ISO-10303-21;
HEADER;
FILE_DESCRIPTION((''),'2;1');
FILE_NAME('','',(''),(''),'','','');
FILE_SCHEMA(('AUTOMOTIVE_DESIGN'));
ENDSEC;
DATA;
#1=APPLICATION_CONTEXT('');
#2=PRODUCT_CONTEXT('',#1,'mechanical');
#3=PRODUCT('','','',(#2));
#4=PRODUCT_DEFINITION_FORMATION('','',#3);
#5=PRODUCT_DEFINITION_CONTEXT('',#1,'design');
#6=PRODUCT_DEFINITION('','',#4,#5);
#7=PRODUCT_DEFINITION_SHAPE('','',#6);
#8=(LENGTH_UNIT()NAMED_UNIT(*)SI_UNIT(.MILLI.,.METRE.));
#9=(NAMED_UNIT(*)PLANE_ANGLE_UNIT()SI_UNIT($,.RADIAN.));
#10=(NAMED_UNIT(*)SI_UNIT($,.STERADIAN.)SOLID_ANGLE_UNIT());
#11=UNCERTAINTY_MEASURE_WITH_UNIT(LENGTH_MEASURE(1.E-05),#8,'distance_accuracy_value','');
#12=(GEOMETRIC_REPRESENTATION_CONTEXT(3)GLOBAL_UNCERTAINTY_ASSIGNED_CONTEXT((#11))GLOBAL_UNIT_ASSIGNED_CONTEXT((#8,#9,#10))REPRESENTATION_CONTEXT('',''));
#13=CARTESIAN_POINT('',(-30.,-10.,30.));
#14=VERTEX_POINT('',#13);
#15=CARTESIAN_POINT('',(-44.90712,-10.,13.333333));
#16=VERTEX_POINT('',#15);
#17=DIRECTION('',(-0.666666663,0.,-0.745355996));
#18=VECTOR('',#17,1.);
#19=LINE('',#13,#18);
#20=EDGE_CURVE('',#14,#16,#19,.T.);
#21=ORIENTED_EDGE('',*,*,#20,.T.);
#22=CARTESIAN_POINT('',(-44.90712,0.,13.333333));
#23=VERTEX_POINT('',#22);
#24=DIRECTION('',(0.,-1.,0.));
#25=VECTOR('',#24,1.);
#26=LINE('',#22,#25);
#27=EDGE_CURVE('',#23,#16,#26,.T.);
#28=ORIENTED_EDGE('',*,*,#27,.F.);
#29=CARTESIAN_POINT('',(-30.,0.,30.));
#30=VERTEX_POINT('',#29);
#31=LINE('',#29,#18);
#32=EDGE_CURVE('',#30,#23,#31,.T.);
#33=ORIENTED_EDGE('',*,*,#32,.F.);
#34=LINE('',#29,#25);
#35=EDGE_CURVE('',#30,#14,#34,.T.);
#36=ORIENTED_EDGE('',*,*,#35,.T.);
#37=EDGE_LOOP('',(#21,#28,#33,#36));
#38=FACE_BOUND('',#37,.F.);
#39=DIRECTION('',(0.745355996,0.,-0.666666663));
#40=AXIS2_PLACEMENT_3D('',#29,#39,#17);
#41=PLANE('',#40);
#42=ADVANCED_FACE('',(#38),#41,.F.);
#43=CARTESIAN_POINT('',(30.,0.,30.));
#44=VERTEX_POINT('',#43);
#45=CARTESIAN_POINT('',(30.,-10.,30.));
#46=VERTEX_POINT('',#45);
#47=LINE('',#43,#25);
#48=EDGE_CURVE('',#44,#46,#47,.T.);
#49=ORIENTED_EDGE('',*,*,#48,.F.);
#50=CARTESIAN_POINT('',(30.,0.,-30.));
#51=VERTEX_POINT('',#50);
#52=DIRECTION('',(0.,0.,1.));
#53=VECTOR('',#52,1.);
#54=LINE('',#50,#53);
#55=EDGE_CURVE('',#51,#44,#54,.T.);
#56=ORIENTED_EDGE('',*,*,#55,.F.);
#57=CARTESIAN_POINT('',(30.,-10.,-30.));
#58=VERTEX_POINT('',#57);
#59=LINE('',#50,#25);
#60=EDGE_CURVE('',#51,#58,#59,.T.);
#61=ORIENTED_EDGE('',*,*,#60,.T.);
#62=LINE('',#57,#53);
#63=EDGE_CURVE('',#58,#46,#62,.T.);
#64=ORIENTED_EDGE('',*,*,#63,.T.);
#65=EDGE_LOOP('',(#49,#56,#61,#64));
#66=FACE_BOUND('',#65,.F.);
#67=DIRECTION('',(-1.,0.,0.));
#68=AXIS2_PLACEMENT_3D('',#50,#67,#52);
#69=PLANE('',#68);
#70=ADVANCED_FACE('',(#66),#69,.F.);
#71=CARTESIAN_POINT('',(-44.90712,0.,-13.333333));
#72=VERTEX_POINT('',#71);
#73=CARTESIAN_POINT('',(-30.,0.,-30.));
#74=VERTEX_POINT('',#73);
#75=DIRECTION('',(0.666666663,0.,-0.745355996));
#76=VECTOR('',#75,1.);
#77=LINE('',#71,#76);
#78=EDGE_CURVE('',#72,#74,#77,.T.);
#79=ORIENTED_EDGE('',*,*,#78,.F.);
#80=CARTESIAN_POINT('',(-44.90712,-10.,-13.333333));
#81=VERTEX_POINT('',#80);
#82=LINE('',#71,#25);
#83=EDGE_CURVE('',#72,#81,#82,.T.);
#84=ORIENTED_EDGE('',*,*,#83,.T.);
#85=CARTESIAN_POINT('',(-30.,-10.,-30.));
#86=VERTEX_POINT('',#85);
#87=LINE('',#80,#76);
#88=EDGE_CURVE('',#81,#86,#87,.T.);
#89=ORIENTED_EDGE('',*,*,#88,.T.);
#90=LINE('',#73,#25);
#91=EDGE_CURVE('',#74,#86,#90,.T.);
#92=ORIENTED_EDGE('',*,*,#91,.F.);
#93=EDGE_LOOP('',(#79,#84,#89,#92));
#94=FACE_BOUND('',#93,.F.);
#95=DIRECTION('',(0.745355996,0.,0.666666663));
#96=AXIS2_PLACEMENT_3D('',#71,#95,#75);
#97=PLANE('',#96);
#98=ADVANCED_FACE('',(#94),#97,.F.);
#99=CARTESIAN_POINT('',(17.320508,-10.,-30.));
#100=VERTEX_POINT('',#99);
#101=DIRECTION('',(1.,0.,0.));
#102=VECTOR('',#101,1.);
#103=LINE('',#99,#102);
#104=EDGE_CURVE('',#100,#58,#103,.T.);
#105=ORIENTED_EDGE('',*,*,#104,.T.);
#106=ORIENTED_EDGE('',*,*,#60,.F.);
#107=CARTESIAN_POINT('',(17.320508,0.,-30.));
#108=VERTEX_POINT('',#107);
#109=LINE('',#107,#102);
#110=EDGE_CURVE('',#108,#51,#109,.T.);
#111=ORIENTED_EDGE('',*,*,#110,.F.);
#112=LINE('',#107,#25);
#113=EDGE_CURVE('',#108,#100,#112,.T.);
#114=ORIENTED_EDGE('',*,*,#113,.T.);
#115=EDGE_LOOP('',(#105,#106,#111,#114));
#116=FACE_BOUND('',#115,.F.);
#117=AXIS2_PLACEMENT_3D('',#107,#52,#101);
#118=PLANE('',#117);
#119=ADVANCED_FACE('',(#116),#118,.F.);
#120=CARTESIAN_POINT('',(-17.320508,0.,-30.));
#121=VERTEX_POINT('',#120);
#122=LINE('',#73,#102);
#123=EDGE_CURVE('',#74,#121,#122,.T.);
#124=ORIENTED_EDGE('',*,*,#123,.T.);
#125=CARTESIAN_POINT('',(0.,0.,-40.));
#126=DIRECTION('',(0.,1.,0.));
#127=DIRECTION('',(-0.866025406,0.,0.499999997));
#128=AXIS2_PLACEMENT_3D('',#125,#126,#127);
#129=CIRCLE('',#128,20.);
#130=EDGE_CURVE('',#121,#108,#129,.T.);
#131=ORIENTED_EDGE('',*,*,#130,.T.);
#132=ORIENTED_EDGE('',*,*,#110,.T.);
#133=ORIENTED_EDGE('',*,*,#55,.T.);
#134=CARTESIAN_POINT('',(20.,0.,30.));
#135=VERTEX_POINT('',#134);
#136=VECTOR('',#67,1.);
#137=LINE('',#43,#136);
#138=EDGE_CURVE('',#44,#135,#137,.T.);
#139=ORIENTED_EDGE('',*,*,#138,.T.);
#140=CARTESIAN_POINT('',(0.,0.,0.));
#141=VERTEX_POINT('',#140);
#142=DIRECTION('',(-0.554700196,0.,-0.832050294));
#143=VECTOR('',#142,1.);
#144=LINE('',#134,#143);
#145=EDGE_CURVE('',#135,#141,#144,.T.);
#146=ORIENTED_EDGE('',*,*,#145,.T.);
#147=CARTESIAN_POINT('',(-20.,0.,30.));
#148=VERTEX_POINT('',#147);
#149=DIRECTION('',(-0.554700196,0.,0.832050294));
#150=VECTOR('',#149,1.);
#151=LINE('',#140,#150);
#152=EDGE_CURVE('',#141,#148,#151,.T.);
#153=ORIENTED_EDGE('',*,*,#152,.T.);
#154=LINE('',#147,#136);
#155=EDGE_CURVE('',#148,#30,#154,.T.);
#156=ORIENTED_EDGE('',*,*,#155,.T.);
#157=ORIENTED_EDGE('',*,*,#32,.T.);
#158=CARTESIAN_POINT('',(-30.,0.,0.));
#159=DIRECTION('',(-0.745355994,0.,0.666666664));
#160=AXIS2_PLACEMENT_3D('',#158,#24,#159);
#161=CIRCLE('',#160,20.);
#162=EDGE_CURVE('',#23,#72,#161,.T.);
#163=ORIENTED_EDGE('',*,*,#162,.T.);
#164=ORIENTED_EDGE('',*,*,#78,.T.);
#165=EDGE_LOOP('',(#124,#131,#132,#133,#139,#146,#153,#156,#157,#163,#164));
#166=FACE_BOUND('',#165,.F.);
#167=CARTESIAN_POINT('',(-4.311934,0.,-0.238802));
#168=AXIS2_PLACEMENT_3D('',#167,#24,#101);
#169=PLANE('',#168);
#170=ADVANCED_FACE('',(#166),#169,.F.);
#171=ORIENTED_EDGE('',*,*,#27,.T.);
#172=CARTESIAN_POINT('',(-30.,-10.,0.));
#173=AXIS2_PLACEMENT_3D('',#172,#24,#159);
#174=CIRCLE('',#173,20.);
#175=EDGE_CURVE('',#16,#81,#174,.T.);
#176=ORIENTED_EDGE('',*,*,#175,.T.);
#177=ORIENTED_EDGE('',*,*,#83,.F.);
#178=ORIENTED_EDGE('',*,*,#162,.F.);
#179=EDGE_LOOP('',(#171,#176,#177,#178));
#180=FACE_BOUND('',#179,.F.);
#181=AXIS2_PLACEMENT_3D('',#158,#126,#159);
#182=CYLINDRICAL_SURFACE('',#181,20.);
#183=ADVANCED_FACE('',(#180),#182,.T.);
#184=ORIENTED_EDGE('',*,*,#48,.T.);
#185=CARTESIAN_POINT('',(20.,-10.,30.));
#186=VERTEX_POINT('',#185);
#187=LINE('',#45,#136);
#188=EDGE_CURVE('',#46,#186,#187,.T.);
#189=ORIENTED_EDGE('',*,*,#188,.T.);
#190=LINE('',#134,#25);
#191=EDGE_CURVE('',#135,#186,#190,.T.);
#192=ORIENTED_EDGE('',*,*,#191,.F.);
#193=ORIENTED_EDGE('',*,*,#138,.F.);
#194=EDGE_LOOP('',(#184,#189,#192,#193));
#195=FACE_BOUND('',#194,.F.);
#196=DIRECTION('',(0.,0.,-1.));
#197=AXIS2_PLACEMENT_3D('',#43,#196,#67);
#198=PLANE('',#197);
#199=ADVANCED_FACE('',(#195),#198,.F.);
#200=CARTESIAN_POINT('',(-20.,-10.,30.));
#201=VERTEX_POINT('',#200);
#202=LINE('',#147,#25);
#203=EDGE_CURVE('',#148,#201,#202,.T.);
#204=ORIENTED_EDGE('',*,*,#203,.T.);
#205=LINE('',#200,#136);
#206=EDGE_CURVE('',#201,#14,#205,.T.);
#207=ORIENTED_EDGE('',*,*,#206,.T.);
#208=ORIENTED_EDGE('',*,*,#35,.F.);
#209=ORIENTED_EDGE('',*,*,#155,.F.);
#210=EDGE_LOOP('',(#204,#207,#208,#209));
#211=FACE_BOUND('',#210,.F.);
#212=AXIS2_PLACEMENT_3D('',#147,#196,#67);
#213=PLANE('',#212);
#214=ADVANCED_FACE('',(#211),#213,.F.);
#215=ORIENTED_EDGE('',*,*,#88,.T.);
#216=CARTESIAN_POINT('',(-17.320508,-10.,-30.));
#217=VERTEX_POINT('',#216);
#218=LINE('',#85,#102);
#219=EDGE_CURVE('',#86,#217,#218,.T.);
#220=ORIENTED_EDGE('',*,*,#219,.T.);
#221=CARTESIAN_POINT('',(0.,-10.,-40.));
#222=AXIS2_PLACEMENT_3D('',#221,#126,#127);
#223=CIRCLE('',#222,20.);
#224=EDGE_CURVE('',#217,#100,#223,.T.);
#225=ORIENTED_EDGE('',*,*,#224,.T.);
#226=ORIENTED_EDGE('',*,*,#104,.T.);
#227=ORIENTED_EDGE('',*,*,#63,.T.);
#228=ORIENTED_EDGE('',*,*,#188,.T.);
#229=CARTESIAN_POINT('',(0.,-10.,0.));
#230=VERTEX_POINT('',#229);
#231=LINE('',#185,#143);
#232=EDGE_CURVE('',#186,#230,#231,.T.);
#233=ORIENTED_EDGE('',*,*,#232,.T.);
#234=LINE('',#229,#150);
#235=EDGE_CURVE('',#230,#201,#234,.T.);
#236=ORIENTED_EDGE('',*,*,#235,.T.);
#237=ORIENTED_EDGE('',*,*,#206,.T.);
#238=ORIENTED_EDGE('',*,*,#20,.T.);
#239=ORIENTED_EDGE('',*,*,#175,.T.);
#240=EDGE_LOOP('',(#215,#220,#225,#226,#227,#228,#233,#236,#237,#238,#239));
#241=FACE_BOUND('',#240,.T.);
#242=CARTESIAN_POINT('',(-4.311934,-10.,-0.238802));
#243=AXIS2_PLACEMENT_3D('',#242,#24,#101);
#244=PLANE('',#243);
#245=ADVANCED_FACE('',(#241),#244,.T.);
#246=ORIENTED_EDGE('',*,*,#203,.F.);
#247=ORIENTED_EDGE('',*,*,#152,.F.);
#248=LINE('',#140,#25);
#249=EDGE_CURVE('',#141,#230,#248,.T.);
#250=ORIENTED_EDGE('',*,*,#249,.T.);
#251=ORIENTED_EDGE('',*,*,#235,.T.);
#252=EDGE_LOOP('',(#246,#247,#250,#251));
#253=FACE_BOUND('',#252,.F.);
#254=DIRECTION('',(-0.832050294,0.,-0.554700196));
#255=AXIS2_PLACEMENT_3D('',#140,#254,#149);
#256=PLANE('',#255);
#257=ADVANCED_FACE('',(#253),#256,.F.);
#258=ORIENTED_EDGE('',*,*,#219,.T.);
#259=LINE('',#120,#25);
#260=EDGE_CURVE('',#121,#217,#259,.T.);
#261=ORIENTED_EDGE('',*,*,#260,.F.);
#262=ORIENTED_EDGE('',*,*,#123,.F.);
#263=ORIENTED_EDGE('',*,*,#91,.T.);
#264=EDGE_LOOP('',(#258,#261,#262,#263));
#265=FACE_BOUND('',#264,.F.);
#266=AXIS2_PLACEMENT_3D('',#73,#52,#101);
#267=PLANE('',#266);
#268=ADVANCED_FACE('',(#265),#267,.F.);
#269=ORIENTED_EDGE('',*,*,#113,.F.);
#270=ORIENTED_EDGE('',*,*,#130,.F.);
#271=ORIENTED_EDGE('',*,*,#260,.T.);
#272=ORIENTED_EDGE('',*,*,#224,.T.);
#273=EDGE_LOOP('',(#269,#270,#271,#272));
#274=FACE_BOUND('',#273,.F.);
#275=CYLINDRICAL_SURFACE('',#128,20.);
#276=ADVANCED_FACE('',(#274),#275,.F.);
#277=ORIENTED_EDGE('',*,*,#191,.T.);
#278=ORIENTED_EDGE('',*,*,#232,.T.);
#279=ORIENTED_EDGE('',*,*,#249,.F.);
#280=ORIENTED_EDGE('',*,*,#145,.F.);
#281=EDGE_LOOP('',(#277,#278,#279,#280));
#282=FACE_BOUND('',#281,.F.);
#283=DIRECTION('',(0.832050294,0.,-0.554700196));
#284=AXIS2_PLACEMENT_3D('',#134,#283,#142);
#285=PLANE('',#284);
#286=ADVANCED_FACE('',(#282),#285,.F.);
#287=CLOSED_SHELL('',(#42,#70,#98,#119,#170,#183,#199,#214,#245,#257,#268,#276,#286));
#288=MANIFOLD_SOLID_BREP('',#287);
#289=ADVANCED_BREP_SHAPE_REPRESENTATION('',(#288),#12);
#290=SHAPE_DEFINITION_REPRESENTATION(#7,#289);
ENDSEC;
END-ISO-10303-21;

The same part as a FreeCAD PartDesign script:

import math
import FreeCAD as App
import Part
import Sketcher

V = App.Vector

doc = App.newDocument("Part")
body = doc.addObject("PartDesign::Body", "Body")

# Sketch on XZ plane
sketch1 = body.newObject("Sketcher::SketchObject", "Sketch")
sketch1.AttachmentSupport = (doc.getObject("XZ_Plane"), [""])
sketch1.MapMode = "FlatFace"
sketch1.addGeometry([
    Part.LineSegment(V(30, -30, 0), V(30, 30, 0)),  # 0
    Part.LineSegment(V(30, 30, 0), V(20, 30, 0)),  # 1
    Part.LineSegment(V(20, 30, 0), V(0, 0, 0)),  # 2
    Part.LineSegment(V(0, 0, 0), V(-20, 30, 0)),  # 3
    Part.LineSegment(V(-20, 30, 0), V(-30, 30, 0)),  # 4
    Part.LineSegment(V(-30, 30, 0), V(-45, 13, 0)),  # 5
    Part.ArcOfCircle(Part.Circle(V(-30, 0, 0), V(0, 0, 1), 20), math.radians(138), math.radians(222)),  # 6
    Part.LineSegment(V(-45, -13, 0), V(-30, -30, 0)),  # 7
    Part.LineSegment(V(-30, -30, 0), V(-17, -30, 0)),  # 8
    Part.ArcOfCircle(Part.Circle(V(0, -40, 0), V(0, 0, 1), 20), math.radians(30), math.radians(150)),  # 9
    Part.LineSegment(V(17, -30, 0), V(30, -30, 0)),  # 10
], False)
sketch1.addConstraint([
    Sketcher.Constraint("Coincident", 0, 2, 1, 1),
    Sketcher.Constraint("Coincident", 1, 2, 2, 1),
    Sketcher.Constraint("Coincident", 2, 2, 3, 1),
    Sketcher.Constraint("Coincident", 3, 2, 4, 1),
    Sketcher.Constraint("Coincident", 4, 2, 5, 1),
    Sketcher.Constraint("Tangent", 5, 2, 6, 1),
    Sketcher.Constraint("Tangent", 6, 2, 7, 1),
    Sketcher.Constraint("Coincident", 7, 2, 8, 1),
    Sketcher.Constraint("Coincident", 8, 2, 9, 2),
    Sketcher.Constraint("Coincident", 9, 1, 10, 1),
    Sketcher.Constraint("Coincident", 10, 2, 0, 1),
    Sketcher.Constraint("Vertical", 0),
    Sketcher.Constraint("Horizontal", 1),
    Sketcher.Constraint("Horizontal", 4),
    Sketcher.Constraint("Horizontal", 8),
    Sketcher.Constraint("Horizontal", 10),
    Sketcher.Constraint("Coincident", 2, 2, -1, 1),
    Sketcher.Constraint("Equal", 6, 9),
    Sketcher.Constraint("Symmetric", 0, 2, 7, 2, -1, 1),
    Sketcher.Constraint("Symmetric", 4, 2, 10, 2, -1, 1),
    Sketcher.Constraint("Symmetric", 1, 2, 3, 2, -2),
    Sketcher.Constraint("PointOnObject", 6, 3, -1),
    Sketcher.Constraint("PointOnObject", 9, 3, -2),
    Sketcher.Constraint("Vertical", 6, 3, 4, 2),
    Sketcher.Constraint("Radius", 6, 20.0),
    Sketcher.Constraint("DistanceX", 1, 2, 1, 1, 10.0),
    Sketcher.Constraint("DistanceY", 0, 1, 0, 2, 60.0),
    Sketcher.Constraint("DistanceX", 6, 3, -1, 1, 30.0),
    Sketcher.Constraint("DistanceY", 9, 3, -1, 1, 40.0),
])
pad1 = body.newObject("PartDesign::Pad", "Pad")
pad1.Profile = sketch1
pad1.Length = 10

doc.recompute()
